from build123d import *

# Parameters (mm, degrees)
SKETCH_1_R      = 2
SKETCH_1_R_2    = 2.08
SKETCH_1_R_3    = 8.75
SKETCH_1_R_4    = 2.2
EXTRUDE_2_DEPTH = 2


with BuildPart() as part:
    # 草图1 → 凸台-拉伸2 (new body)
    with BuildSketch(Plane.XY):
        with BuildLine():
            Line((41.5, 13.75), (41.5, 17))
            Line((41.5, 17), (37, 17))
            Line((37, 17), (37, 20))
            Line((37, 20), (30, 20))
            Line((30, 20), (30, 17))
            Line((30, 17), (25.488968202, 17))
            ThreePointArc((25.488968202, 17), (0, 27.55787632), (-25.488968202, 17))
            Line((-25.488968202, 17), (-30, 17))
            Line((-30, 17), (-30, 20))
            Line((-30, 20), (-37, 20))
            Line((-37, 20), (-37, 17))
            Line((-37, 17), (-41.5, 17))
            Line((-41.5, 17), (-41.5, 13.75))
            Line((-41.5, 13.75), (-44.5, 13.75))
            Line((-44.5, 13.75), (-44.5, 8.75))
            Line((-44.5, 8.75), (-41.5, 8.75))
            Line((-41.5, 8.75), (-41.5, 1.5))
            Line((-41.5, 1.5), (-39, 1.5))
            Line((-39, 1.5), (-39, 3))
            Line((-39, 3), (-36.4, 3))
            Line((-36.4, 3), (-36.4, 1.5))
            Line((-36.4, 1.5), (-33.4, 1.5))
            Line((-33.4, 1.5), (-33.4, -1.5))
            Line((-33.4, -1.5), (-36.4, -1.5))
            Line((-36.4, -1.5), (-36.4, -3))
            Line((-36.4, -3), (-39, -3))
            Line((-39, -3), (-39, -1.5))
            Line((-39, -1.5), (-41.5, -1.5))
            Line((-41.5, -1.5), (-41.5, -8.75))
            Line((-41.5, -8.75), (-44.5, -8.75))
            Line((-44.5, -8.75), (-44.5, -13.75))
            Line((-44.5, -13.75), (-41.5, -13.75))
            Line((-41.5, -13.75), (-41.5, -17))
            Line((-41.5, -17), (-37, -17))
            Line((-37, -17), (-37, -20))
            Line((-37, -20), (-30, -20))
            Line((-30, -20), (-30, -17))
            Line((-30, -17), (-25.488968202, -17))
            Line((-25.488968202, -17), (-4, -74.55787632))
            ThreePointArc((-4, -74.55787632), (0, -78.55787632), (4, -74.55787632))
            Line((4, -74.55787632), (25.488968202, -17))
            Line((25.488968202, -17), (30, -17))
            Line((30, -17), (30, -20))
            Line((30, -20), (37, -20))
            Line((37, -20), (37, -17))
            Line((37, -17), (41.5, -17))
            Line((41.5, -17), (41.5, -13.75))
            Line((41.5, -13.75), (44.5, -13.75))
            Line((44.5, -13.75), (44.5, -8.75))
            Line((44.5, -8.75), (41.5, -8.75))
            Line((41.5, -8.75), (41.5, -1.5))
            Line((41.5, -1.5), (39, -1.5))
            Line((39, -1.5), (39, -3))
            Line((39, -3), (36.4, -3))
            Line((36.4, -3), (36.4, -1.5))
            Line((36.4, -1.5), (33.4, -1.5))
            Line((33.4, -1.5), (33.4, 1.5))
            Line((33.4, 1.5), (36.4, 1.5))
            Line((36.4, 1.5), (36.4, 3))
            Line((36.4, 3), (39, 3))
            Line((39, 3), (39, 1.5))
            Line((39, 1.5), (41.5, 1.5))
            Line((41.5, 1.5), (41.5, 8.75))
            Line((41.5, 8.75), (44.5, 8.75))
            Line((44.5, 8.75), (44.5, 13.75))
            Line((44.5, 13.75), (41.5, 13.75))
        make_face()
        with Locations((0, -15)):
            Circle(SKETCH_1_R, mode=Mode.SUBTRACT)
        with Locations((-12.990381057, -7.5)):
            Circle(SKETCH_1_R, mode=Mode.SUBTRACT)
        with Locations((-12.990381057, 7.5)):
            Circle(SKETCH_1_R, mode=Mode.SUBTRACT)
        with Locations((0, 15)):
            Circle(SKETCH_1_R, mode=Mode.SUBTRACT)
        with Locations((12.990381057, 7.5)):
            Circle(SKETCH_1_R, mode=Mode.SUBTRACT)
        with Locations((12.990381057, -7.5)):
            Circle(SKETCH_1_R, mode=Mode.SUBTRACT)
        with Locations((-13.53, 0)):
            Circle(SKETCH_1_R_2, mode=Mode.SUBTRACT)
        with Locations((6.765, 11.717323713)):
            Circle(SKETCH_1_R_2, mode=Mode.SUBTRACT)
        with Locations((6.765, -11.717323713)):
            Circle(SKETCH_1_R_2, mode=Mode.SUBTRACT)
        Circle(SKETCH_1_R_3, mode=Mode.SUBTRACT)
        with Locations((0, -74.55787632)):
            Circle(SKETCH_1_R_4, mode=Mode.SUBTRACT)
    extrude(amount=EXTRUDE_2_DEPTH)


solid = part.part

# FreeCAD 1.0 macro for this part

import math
import FreeCAD as App
import Part
import Sketcher
Q = App.Units.Quantity

doc = App.newDocument("Part")
body = doc.addObject("PartDesign::Body", "Body")

# Sketch on XY plane
sketch1 = doc.addObject("Sketcher::SketchObject", "Sketch")
body.addObject(sketch1)
sketch1.AttachmentSupport = (doc.XY_Plane, [""])
sketch1.MapMode = "FlatFace"
sketch1.addGeometry(Part.LineSegment(App.Vector(41.5, 13.75, 0), App.Vector(41.5, 17, 0)), False)
sketch1.addGeometry(Part.LineSegment(App.Vector(41.5, 17, 0), App.Vector(37, 17, 0)), False)
sketch1.addGeometry(Part.LineSegment(App.Vector(37, 17, 0), App.Vector(37, 20, 0)), False)
sketch1.addGeometry(Part.LineSegment(App.Vector(37, 20, 0), App.Vector(30, 20, 0)), False)
sketch1.addGeometry(Part.LineSegment(App.Vector(30, 20, 0), App.Vector(30, 17, 0)), False)
sketch1.addGeometry(Part.LineSegment(App.Vector(30, 17, 0), App.Vector(25.488968, 17, 0)), False)
sketch1.addGeometry(Part.ArcOfCircle(Part.Circle(App.Vector(0, -8.488968, 0), App.Vector(0, 0, 1), 36.046845), math.radians(45), math.radians(135)), False)
sketch1.addGeometry(Part.LineSegment(App.Vector(-25.488968, 17, 0), App.Vector(-30, 17, 0)), False)
sketch1.addGeometry(Part.LineSegment(App.Vector(-30, 17, 0), App.Vector(-30, 20, 0)), False)
sketch1.addGeometry(Part.LineSegment(App.Vector(-30, 20, 0), App.Vector(-37, 20, 0)), False)
sketch1.addGeometry(Part.LineSegment(App.Vector(-37, 20, 0), App.Vector(-37, 17, 0)), False)
sketch1.addGeometry(Part.LineSegment(App.Vector(-37, 17, 0), App.Vector(-41.5, 17, 0)), False)
sketch1.addGeometry(Part.LineSegment(App.Vector(-41.5, 17, 0), App.Vector(-41.5, 13.75, 0)), False)
sketch1.addGeometry(Part.LineSegment(App.Vector(-41.5, 13.75, 0), App.Vector(-44.5, 13.75, 0)), False)
sketch1.addGeometry(Part.LineSegment(App.Vector(-44.5, 13.75, 0), App.Vector(-44.5, 8.75, 0)), False)
sketch1.addGeometry(Part.LineSegment(App.Vector(-44.5, 8.75, 0), App.Vector(-41.5, 8.75, 0)), False)
sketch1.addGeometry(Part.LineSegment(App.Vector(-41.5, 8.75, 0), App.Vector(-41.5, 1.5, 0)), False)
sketch1.addGeometry(Part.LineSegment(App.Vector(-41.5, 1.5, 0), App.Vector(-39, 1.5, 0)), False)
sketch1.addGeometry(Part.LineSegment(App.Vector(-39, 1.5, 0), App.Vector(-39, 3, 0)), False)
sketch1.addGeometry(Part.LineSegment(App.Vector(-39, 3, 0), App.Vector(-36.4, 3, 0)), False)
sketch1.addGeometry(Part.LineSegment(App.Vector(-36.4, 3, 0), App.Vector(-36.4, 1.5, 0)), False)
sketch1.addGeometry(Part.LineSegment(App.Vector(-36.4, 1.5, 0), App.Vector(-33.4, 1.5, 0)), False)
sketch1.addGeometry(Part.LineSegment(App.Vector(-33.4, 1.5, 0), App.Vector(-33.4, -1.5, 0)), False)
sketch1.addGeometry(Part.LineSegment(App.Vector(-33.4, -1.5, 0), App.Vector(-36.4, -1.5, 0)), False)
sketch1.addGeometry(Part.LineSegment(App.Vector(-36.4, -1.5, 0), App.Vector(-36.4, -3, 0)), False)
sketch1.addGeometry(Part.LineSegment(App.Vector(-36.4, -3, 0), App.Vector(-39, -3, 0)), False)
sketch1.addGeometry(Part.LineSegment(App.Vector(-39, -3, 0), App.Vector(-39, -1.5, 0)), False)
sketch1.addGeometry(Part.LineSegment(App.Vector(-39, -1.5, 0), App.Vector(-41.5, -1.5, 0)), False)
sketch1.addGeometry(Part.LineSegment(App.Vector(-41.5, -1.5, 0), App.Vector(-41.5, -8.75, 0)), False)
sketch1.addGeometry(Part.LineSegment(App.Vector(-41.5, -8.75, 0), App.Vector(-44.5, -8.75, 0)), False)
sketch1.addGeometry(Part.LineSegment(App.Vector(-44.5, -8.75, 0), App.Vector(-44.5, -13.75, 0)), False)
sketch1.addGeometry(Part.LineSegment(App.Vector(-44.5, -13.75, 0), App.Vector(-41.5, -13.75, 0)), False)
sketch1.addGeometry(Part.LineSegment(App.Vector(-41.5, -13.75, 0), App.Vector(-41.5, -17, 0)), False)
sketch1.addGeometry(Part.LineSegment(App.Vector(-41.5, -17, 0), App.Vector(-37, -17, 0)), False)
sketch1.addGeometry(Part.LineSegment(App.Vector(-37, -17, 0), App.Vector(-37, -20, 0)), False)
sketch1.addGeometry(Part.LineSegment(App.Vector(-37, -20, 0), App.Vector(-30, -20, 0)), False)
sketch1.addGeometry(Part.LineSegment(App.Vector(-30, -20, 0), App.Vector(-30, -17, 0)), False)
sketch1.addGeometry(Part.LineSegment(App.Vector(-30, -17, 0), App.Vector(-25.488968, -17, 0)), False)
sketch1.addGeometry(Part.LineSegment(App.Vector(-25.488968, -17, 0), App.Vector(-4, -74.557876, 0)), False)
sketch1.addGeometry(Part.ArcOfCircle(Part.Circle(App.Vector(0, -74.557876, 0), App.Vector(0, 0, 1), 4), math.radians(180), math.radians(360)), False)
sketch1.addGeometry(Part.LineSegment(App.Vector(4, -74.557876, 0), App.Vector(25.488968, -17, 0)), False)
sketch1.addGeometry(Part.LineSegment(App.Vector(25.488968, -17, 0), App.Vector(30, -17, 0)), False)
sketch1.addGeometry(Part.LineSegment(App.Vector(30, -17, 0), App.Vector(30, -20, 0)), False)
sketch1.addGeometry(Part.LineSegment(App.Vector(30, -20, 0), App.Vector(37, -20, 0)), False)
sketch1.addGeometry(Part.LineSegment(App.Vector(37, -20, 0), App.Vector(37, -17, 0)), False)
sketch1.addGeometry(Part.LineSegment(App.Vector(37, -17, 0), App.Vector(41.5, -17, 0)), False)
sketch1.addGeometry(Part.LineSegment(App.Vector(41.5, -17, 0), App.Vector(41.5, -13.75, 0)), False)
sketch1.addGeometry(Part.LineSegment(App.Vector(41.5, -13.75, 0), App.Vector(44.5, -13.75, 0)), False)
sketch1.addGeometry(Part.LineSegment(App.Vector(44.5, -13.75, 0), App.Vector(44.5, -8.75, 0)), False)
sketch1.addGeometry(Part.LineSegment(App.Vector(44.5, -8.75, 0), App.Vector(41.5, -8.75, 0)), False)
sketch1.addGeometry(Part.LineSegment(App.Vector(41.5, -8.75, 0), App.Vector(41.5, -1.5, 0)), False)
sketch1.addGeometry(Part.LineSegment(App.Vector(41.5, -1.5, 0), App.Vector(39, -1.5, 0)), False)
sketch1.addGeometry(Part.LineSegment(App.Vector(39, -1.5, 0), App.Vector(39, -3, 0)), False)
sketch1.addGeometry(Part.LineSegment(App.Vector(39, -3, 0), App.Vector(36.4, -3, 0)), False)
sketch1.addGeometry(Part.LineSegment(App.Vector(36.4, -3, 0), App.Vector(36.4, -1.5, 0)), False)
sketch1.addGeometry(Part.LineSegment(App.Vector(36.4, -1.5, 0), App.Vector(33.4, -1.5, 0)), False)
sketch1.addGeometry(Part.LineSegment(App.Vector(33.4, -1.5, 0), App.Vector(33.4, 1.5, 0)), False)
sketch1.addGeometry(Part.LineSegment(App.Vector(33.4, 1.5, 0), App.Vector(36.4, 1.5, 0)), False)
sketch1.addGeometry(Part.LineSegment(App.Vector(36.4, 1.5, 0), App.Vector(36.4, 3, 0)), False)
sketch1.addGeometry(Part.LineSegment(App.Vector(36.4, 3, 0), App.Vector(39, 3, 0)), False)
sketch1.addGeometry(Part.LineSegment(App.Vector(39, 3, 0), App.Vector(39, 1.5, 0)), False)
sketch1.addGeometry(Part.LineSegment(App.Vector(39, 1.5, 0), App.Vector(41.5, 1.5, 0)), False)
sketch1.addGeometry(Part.LineSegment(App.Vector(41.5, 1.5, 0), App.Vector(41.5, 8.75, 0)), False)
sketch1.addGeometry(Part.LineSegment(App.Vector(41.5, 8.75, 0), App.Vector(44.5, 8.75, 0)), False)
sketch1.addGeometry(Part.LineSegment(App.Vector(44.5, 8.75, 0), App.Vector(44.5, 13.75, 0)), False)
sketch1.addGeometry(Part.LineSegment(App.Vector(44.5, 13.75, 0), App.Vector(41.5, 13.75, 0)), False)
sketch1.addGeometry(Part.Circle(App.Vector(0, -74.557876, 0), App.Vector(0, 0, 1), 2.2), False)
sketch1.addGeometry(Part.Circle(App.Vector(-12.990381, -7.5, 0), App.Vector(0, 0, 1), 2), False)
sketch1.addGeometry(Part.Circle(App.Vector(-13.53, 0, 0), App.Vector(0, 0, 1), 2.08), False)
sketch1.addGeometry(Part.Circle(App.Vector(-12.990381, 7.5, 0), App.Vector(0, 0, 1), 2), False)
sketch1.addGeometry(Part.Circle(App.Vector(0, -15, 0), App.Vector(0, 0, 1), 2), False)
sketch1.addGeometry(Part.Circle(App.Vector(6.765, -11.717324, 0), App.Vector(0, 0, 1), 2.08), False)
sketch1.addGeometry(Part.Circle(App.Vector(12.990381, -7.5, 0), App.Vector(0, 0, 1), 2), False)
sketch1.addGeometry(Part.Circle(App.Vector(0, 0, 0), App.Vector(0, 0, 1), 8.75), False)
sketch1.addGeometry(Part.Circle(App.Vector(0, 15, 0), App.Vector(0, 0, 1), 2), False)
sketch1.addGeometry(Part.Circle(App.Vector(6.765, 11.717324, 0), App.Vector(0, 0, 1), 2.08), False)
sketch1.addGeometry(Part.Circle(App.Vector(12.990381, 7.5, 0), App.Vector(0, 0, 1), 2), False)
sketch1.addConstraint(Sketcher.Constraint("Coincident", 0, 2, 1, 1))
sketch1.addConstraint(Sketcher.Constraint("Coincident", 1, 2, 2, 1))
sketch1.addConstraint(Sketcher.Constraint("Coincident", 2, 2, 3, 1))
sketch1.addConstraint(Sketcher.Constraint("Coincident", 3, 2, 4, 1))
sketch1.addConstraint(Sketcher.Constraint("Coincident", 4, 2, 5, 1))
sketch1.addConstraint(Sketcher.Constraint("Coincident", 5, 2, 6, 1))
sketch1.addConstraint(Sketcher.Constraint("Coincident", 6, 2, 7, 1))
sketch1.addConstraint(Sketcher.Constraint("Coincident", 7, 2, 8, 1))
sketch1.addConstraint(Sketcher.Constraint("Coincident", 8, 2, 9, 1))
sketch1.addConstraint(Sketcher.Constraint("Coincident", 9, 2, 10, 1))
sketch1.addConstraint(Sketcher.Constraint("Coincident", 10, 2, 11, 1))
sketch1.addConstraint(Sketcher.Constraint("Coincident", 11, 2, 12, 1))
sketch1.addConstraint(Sketcher.Constraint("Coincident", 12, 2, 13, 1))
sketch1.addConstraint(Sketcher.Constraint("Coincident", 13, 2, 14, 1))
sketch1.addConstraint(Sketcher.Constraint("Coincident", 14, 2, 15, 1))
sketch1.addConstraint(Sketcher.Constraint("Coincident", 15, 2, 16, 1))
sketch1.addConstraint(Sketcher.Constraint("Coincident", 16, 2, 17, 1))
sketch1.addConstraint(Sketcher.Constraint("Coincident", 17, 2, 18, 1))
sketch1.addConstraint(Sketcher.Constraint("Coincident", 18, 2, 19, 1))
sketch1.addConstraint(Sketcher.Constraint("Coincident", 19, 2, 20, 1))
sketch1.addConstraint(Sketcher.Constraint("Coincident", 20, 2, 21, 1))
sketch1.addConstraint(Sketcher.Constraint("Coincident", 21, 2, 22, 1))
sketch1.addConstraint(Sketcher.Constraint("Coincident", 22, 2, 23, 1))
sketch1.addConstraint(Sketcher.Constraint("Coincident", 23, 2, 24, 1))
sketch1.addConstraint(Sketcher.Constraint("Coincident", 24, 2, 25, 1))
sketch1.addConstraint(Sketcher.Constraint("Coincident", 25, 2, 26, 1))
sketch1.addConstraint(Sketcher.Constraint("Coincident", 26, 2, 27, 1))
sketch1.addConstraint(Sketcher.Constraint("Coincident", 27, 2, 28, 1))
sketch1.addConstraint(Sketcher.Constraint("Coincident", 28, 2, 29, 1))
sketch1.addConstraint(Sketcher.Constraint("Coincident", 29, 2, 30, 1))
sketch1.addConstraint(Sketcher.Constraint("Coincident", 30, 2, 31, 1))
sketch1.addConstraint(Sketcher.Constraint("Coincident", 31, 2, 32, 1))
sketch1.addConstraint(Sketcher.Constraint("Coincident", 32, 2, 33, 1))
sketch1.addConstraint(Sketcher.Constraint("Coincident", 33, 2, 34, 1))
sketch1.addConstraint(Sketcher.Constraint("Coincident", 34, 2, 35, 1))
sketch1.addConstraint(Sketcher.Constraint("Coincident", 35, 2, 36, 1))
sketch1.addConstraint(Sketcher.Constraint("Coincident", 36, 2, 37, 1))
sketch1.addConstraint(Sketcher.Constraint("Coincident", 37, 2, 38, 1))
sketch1.addConstraint(Sketcher.Constraint("Coincident", 38, 2, 39, 1))
sketch1.addConstraint(Sketcher.Constraint("Coincident", 39, 2, 40, 1))
sketch1.addConstraint(Sketcher.Constraint("Coincident", 40, 2, 41, 1))
sketch1.addConstraint(Sketcher.Constraint("Coincident", 41, 2, 42, 1))
sketch1.addConstraint(Sketcher.Constraint("Coincident", 42, 2, 43, 1))
sketch1.addConstraint(Sketcher.Constraint("Coincident", 43, 2, 44, 1))
sketch1.addConstraint(Sketcher.Constraint("Coincident", 44, 2, 45, 1))
sketch1.addConstraint(Sketcher.Constraint("Coincident", 45, 2, 46, 1))
sketch1.addConstraint(Sketcher.Constraint("Coincident", 46, 2, 47, 1))
sketch1.addConstraint(Sketcher.Constraint("Coincident", 47, 2, 48, 1))
sketch1.addConstraint(Sketcher.Constraint("Coincident", 48, 2, 49, 1))
sketch1.addConstraint(Sketcher.Constraint("Coincident", 49, 2, 50, 1))
sketch1.addConstraint(Sketcher.Constraint("Coincident", 50, 2, 51, 1))
sketch1.addConstraint(Sketcher.Constraint("Coincident", 51, 2, 52, 1))
sketch1.addConstraint(Sketcher.Constraint("Coincident", 52, 2, 53, 1))
sketch1.addConstraint(Sketcher.Constraint("Coincident", 53, 2, 54, 1))
sketch1.addConstraint(Sketcher.Constraint("Coincident", 54, 2, 55, 1))
sketch1.addConstraint(Sketcher.Constraint("Coincident", 55, 2, 56, 1))
sketch1.addConstraint(Sketcher.Constraint("Coincident", 56, 2, 57, 1))
sketch1.addConstraint(Sketcher.Constraint("Coincident", 57, 2, 58, 1))
sketch1.addConstraint(Sketcher.Constraint("Coincident", 58, 2, 59, 1))
sketch1.addConstraint(Sketcher.Constraint("Coincident", 59, 2, 60, 1))
sketch1.addConstraint(Sketcher.Constraint("Coincident", 60, 2, 61, 1))
sketch1.addConstraint(Sketcher.Constraint("Coincident", 61, 2, 62, 1))
sketch1.addConstraint(Sketcher.Constraint("Coincident", 62, 2, 63, 1))
sketch1.addConstraint(Sketcher.Constraint("Coincident", 63, 2, 64, 1))
sketch1.addConstraint(Sketcher.Constraint("Coincident", 64, 2, 65, 1))
sketch1.addConstraint(Sketcher.Constraint("Coincident", 65, 2, 0, 1))
sketch1.addConstraint(Sketcher.Constraint("Vertical", 0))
sketch1.addConstraint(Sketcher.Constraint("Horizontal", 1))
sketch1.addConstraint(Sketcher.Constraint("Vertical", 2))
sketch1.addConstraint(Sketcher.Constraint("Horizontal", 3))
sketch1.addConstraint(Sketcher.Constraint("Vertical", 4))
sketch1.addConstraint(Sketcher.Constraint("Horizontal", 5))
sketch1.addConstraint(Sketcher.Constraint("Horizontal", 7))
sketch1.addConstraint(Sketcher.Constraint("Vertical", 8))
sketch1.addConstraint(Sketcher.Constraint("Horizontal", 9))
sketch1.addConstraint(Sketcher.Constraint("Vertical", 10))
sketch1.addConstraint(Sketcher.Constraint("Horizontal", 11))
sketch1.addConstraint(Sketcher.Constraint("Vertical", 12))
sketch1.addConstraint(Sketcher.Constraint("Horizontal", 13))
sketch1.addConstraint(Sketcher.Constraint("Vertical", 14))
sketch1.addConstraint(Sketcher.Constraint("Horizontal", 15))
sketch1.addConstraint(Sketcher.Constraint("Vertical", 16))
sketch1.addConstraint(Sketcher.Constraint("Horizontal", 17))
sketch1.addConstraint(Sketcher.Constraint("Vertical", 18))
sketch1.addConstraint(Sketcher.Constraint("Horizontal", 19))
sketch1.addConstraint(Sketcher.Constraint("Vertical", 20))
sketch1.addConstraint(Sketcher.Constraint("Horizontal", 21))
sketch1.addConstraint(Sketcher.Constraint("Vertical", 22))
sketch1.addConstraint(Sketcher.Constraint("Horizontal", 23))
sketch1.addConstraint(Sketcher.Constraint("Vertical", 24))
sketch1.addConstraint(Sketcher.Constraint("Horizontal", 25))
sketch1.addConstraint(Sketcher.Constraint("Vertical", 26))
sketch1.addConstraint(Sketcher.Constraint("Horizontal", 27))
sketch1.addConstraint(Sketcher.Constraint("Vertical", 28))
sketch1.addConstraint(Sketcher.Constraint("Horizontal", 29))
sketch1.addConstraint(Sketcher.Constraint("Vertical", 30))
sketch1.addConstraint(Sketcher.Constraint("Horizontal", 31))
sketch1.addConstraint(Sketcher.Constraint("Vertical", 32))
sketch1.addConstraint(Sketcher.Constraint("Horizontal", 33))
sketch1.addConstraint(Sketcher.Constraint("Vertical", 34))
sketch1.addConstraint(Sketcher.Constraint("Horizontal", 35))
sketch1.addConstraint(Sketcher.Constraint("Vertical", 36))
sketch1.addConstraint(Sketcher.Constraint("Horizontal", 37))
sketch1.addConstraint(Sketcher.Constraint("Horizontal", 41))
sketch1.addConstraint(Sketcher.Constraint("Vertical", 42))
sketch1.addConstraint(Sketcher.Constraint("Horizontal", 43))
sketch1.addConstraint(Sketcher.Constraint("Vertical", 44))
sketch1.addConstraint(Sketcher.Constraint("Horizontal", 45))
sketch1.addConstraint(Sketcher.Constraint("Vertical", 46))
sketch1.addConstraint(Sketcher.Constraint("Horizontal", 47))
sketch1.addConstraint(Sketcher.Constraint("Vertical", 48))
sketch1.addConstraint(Sketcher.Constraint("Horizontal", 49))
sketch1.addConstraint(Sketcher.Constraint("Vertical", 50))
sketch1.addConstraint(Sketcher.Constraint("Horizontal", 51))
sketch1.addConstraint(Sketcher.Constraint("Vertical", 52))
sketch1.addConstraint(Sketcher.Constraint("Horizontal", 53))
sketch1.addConstraint(Sketcher.Constraint("Vertical", 54))
sketch1.addConstraint(Sketcher.Constraint("Horizontal", 55))
sketch1.addConstraint(Sketcher.Constraint("Vertical", 56))
sketch1.addConstraint(Sketcher.Constraint("Horizontal", 57))
sketch1.addConstraint(Sketcher.Constraint("Vertical", 58))
sketch1.addConstraint(Sketcher.Constraint("Horizontal", 59))
sketch1.addConstraint(Sketcher.Constraint("Vertical", 60))
sketch1.addConstraint(Sketcher.Constraint("Horizontal", 61))
sketch1.addConstraint(Sketcher.Constraint("Vertical", 62))
sketch1.addConstraint(Sketcher.Constraint("Horizontal", 63))
sketch1.addConstraint(Sketcher.Constraint("Vertical", 64))
sketch1.addConstraint(Sketcher.Constraint("Horizontal", 65))
sketch1.addConstraint(Sketcher.Constraint("Coincident", 73, 3, -1, 1))
sketch1.addConstraint(Sketcher.Constraint("Coincident", 66, 3, 39, 3))
sketch1.addConstraint(Sketcher.Constraint("Equal", 67, 69))
sketch1.addConstraint(Sketcher.Constraint("Equal", 69, 70))
sketch1.addConstraint(Sketcher.Constraint("Equal", 68, 71))
sketch1.addConstraint(Sketcher.Constraint("Equal", 70, 72))
sketch1.addConstraint(Sketcher.Constraint("Equal", 72, 74))
sketch1.addConstraint(Sketcher.Constraint("Equal", 71, 75))
sketch1.addConstraint(Sketcher.Constraint("Equal", 74, 76))
sketch1.addConstraint(Sketcher.Constraint("Symmetric", 69, 3, 72, 3, -1, 1))
sketch1.addConstraint(Sketcher.Constraint("Symmetric", 70, 3, 74, 3, -1, 1))
sketch1.addConstraint(Sketcher.Constraint("Symmetric", 67, 3, 76, 3, -1, 1))
sketch1.addConstraint(Sketcher.Constraint("Symmetric", 0, 2, 32, 2, -1, 1))
sketch1.addConstraint(Sketcher.Constraint("Symmetric", 2, 2, 34, 2, -1, 1))
sketch1.addConstraint(Sketcher.Constraint("Symmetric", 4, 2, 36, 2, -1, 1))
sketch1.addConstraint(Sketcher.Constraint("Symmetric", 6, 2, 40, 2, -1, 1))
sketch1.addConstraint(Sketcher.Constraint("Symmetric", 8, 2, 42, 2, -1, 1))
sketch1.addConstraint(Sketcher.Constraint("Symmetric", 10, 2, 44, 2, -1, 1))
sketch1.addConstraint(Sketcher.Constraint("Symmetric", 12, 2, 46, 2, -1, 1))
sketch1.addConstraint(Sketcher.Constraint("Symmetric", 14, 2, 48, 2, -1, 1))
sketch1.addConstraint(Sketcher.Constraint("Symmetric", 16, 2, 50, 2, -1, 1))
sketch1.addConstraint(Sketcher.Constraint("Symmetric", 18, 2, 52, 2, -1, 1))
sketch1.addConstraint(Sketcher.Constraint("Symmetric", 20, 2, 54, 2, -1, 1))
sketch1.addConstraint(Sketcher.Constraint("Symmetric", 22, 2, 56, 2, -1, 1))
sketch1.addConstraint(Sketcher.Constraint("Symmetric", 24, 2, 58, 2, -1, 1))
sketch1.addConstraint(Sketcher.Constraint("Symmetric", 26, 2, 60, 2, -1, 1))
sketch1.addConstraint(Sketcher.Constraint("Symmetric", 28, 2, 62, 2, -1, 1))
sketch1.addConstraint(Sketcher.Constraint("Symmetric", 30, 2, 64, 2, -1, 1))
sketch1.addConstraint(Sketcher.Constraint("Symmetric", 67, 3, 72, 3, -2))
sketch1.addConstraint(Sketcher.Constraint("Symmetric", 5, 2, 6, 2, -2))
sketch1.addConstraint(Sketcher.Constraint("Symmetric", 3, 2, 8, 2, -2))
sketch1.addConstraint(Sketcher.Constraint("Symmetric", 1, 2, 10, 2, -2))
sketch1.addConstraint(Sketcher.Constraint("Symmetric", 38, 2, 39, 2, -2))
sketch1.addConstraint(Sketcher.Constraint("Symmetric", 31, 2, 46, 2, -2))
sketch1.addConstraint(Sketcher.Constraint("Symmetric", 29, 2, 48, 2, -2))
sketch1.addConstraint(Sketcher.Constraint("Symmetric", 27, 2, 50, 2, -2))
sketch1.addConstraint(Sketcher.Constraint("Symmetric", 25, 2, 52, 2, -2))
sketch1.addConstraint(Sketcher.Constraint("Symmetric", 23, 2, 54, 2, -2))
sketch1.addConstraint(Sketcher.Constraint("Symmetric", 71, 3, 75, 3, -1))
sketch1.addConstraint(Sketcher.Constraint("PointOnObject", 68, 3, -1))
sketch1.addConstraint(Sketcher.Constraint("PointOnObject", 70, 3, -2))
sketch1.addConstraint(Sketcher.Constraint("Horizontal", 1, 2, 4, 2))
sketch1.addConstraint(Sketcher.Constraint("Horizontal", 17, 2, 20, 2))
sketch1.addConstraint(Sketcher.Constraint("Horizontal", 66, 3, 38, 2))
sketch1.addConstraint(Sketcher.Constraint("Vertical", 12, 2, 15, 2))
sketch1.addConstraint(Sketcher.Constraint("Vertical", 6, 2, 37, 2))
sketch1.addConstraint(Sketcher.Constraint("Equal", 15, 21))
sketch1.addConstraint(Sketcher.Constraint("Equal", 65, 2))
sketch1.addConstraint(Sketcher.Constraint("Equal", 10, 22))
sketch1.addConstraint(Sketcher.Constraint("Diameter", 67, Q("4 mm")))
sketch1.addConstraint(Sketcher.Constraint("Radius", 39, Q("4 mm")))
sketch1.addConstraint(Sketcher.Constraint("Diameter", 66, Q("4.4 mm")))
sketch1.addConstraint(Sketcher.Constraint("Diameter", 73, Q("17.5 mm")))
sketch1.addConstraint(Sketcher.Constraint("Diameter", 68, Q("4.16 mm")))
sketch1.addConstraint(Sketcher.Constraint("DistanceX", 3, 2, 3, 1, Q("7 mm")))
sketch1.addConstraint(Sketcher.Constraint("DistanceX", 13, 2, 13, 1, Q("3 mm")))
sketch1.addConstraint(Sketcher.Constraint("DistanceY", 14, 2, 14, 1, Q("5 mm")))
sketch1.addConstraint(Sketcher.Constraint("DistanceX", 1, 2, 1, 1, Q("4.5 mm")))
sketch1.addConstraint(Sketcher.Constraint("DistanceX", 17, 1, 17, 2, Q("2.5 mm")))
sketch1.addConstraint(Sketcher.Constraint("DistanceX", 19, 1, 19, 2, Q("2.6 mm")))
sketch1.addConstraint(Sketcher.Constraint("DistanceY", 18, 1, 18, 2, Q("1.5 mm")))
sketch1.addConstraint(Sketcher.Constraint("DistanceY", 70, 3, -1, 1, Q("15 mm")))
sketch1.addConstraint(Sketcher.Constraint("DistanceY", -1, 1, 0, 2, Q("17 mm")))
sketch1.addConstraint(Sketcher.Constraint("DistanceX", -1, 1, 1, 2, Q("37 mm")))
sketch1.addConstraint(Sketcher.Constraint("DistanceY", 0, 1, 0, 2, Q("3.25 mm")))
sketch1.addConstraint(Sketcher.Constraint("DistanceY", 67, 3, -1, 1, Q("7.5 mm")))
sketch1.addConstraint(Sketcher.Constraint("DistanceX", 68, 3, -1, 1, Q("13.53 mm")))
sketch1.addConstraint(Sketcher.Constraint("DistanceX", -1, 1, 71, 3, Q("6.765 mm")))
sketch1.addConstraint(Sketcher.Constraint("Radius", 6, Q("36.046845 mm")))
sketch1.addConstraint(Sketcher.Constraint("DistanceX", 5, 2, 5, 1, Q("4.511032 mm")))
sketch1.addConstraint(Sketcher.Constraint("DistanceX", 67, 3, -1, 1, Q("12.990381 mm")))
sketch1.addConstraint(Sketcher.Constraint("Distance", 38, Q("61.438464 mm")))
sketch1.addConstraint(Sketcher.Constraint("DistanceY", 71, 3, -1, 1, Q("11.717324 mm")))
pad1 = doc.addObject("PartDesign::Pad", "Pad")
body.addObject(pad1)
pad1.Profile = sketch1
pad1.Length = 2

doc.recompute()
